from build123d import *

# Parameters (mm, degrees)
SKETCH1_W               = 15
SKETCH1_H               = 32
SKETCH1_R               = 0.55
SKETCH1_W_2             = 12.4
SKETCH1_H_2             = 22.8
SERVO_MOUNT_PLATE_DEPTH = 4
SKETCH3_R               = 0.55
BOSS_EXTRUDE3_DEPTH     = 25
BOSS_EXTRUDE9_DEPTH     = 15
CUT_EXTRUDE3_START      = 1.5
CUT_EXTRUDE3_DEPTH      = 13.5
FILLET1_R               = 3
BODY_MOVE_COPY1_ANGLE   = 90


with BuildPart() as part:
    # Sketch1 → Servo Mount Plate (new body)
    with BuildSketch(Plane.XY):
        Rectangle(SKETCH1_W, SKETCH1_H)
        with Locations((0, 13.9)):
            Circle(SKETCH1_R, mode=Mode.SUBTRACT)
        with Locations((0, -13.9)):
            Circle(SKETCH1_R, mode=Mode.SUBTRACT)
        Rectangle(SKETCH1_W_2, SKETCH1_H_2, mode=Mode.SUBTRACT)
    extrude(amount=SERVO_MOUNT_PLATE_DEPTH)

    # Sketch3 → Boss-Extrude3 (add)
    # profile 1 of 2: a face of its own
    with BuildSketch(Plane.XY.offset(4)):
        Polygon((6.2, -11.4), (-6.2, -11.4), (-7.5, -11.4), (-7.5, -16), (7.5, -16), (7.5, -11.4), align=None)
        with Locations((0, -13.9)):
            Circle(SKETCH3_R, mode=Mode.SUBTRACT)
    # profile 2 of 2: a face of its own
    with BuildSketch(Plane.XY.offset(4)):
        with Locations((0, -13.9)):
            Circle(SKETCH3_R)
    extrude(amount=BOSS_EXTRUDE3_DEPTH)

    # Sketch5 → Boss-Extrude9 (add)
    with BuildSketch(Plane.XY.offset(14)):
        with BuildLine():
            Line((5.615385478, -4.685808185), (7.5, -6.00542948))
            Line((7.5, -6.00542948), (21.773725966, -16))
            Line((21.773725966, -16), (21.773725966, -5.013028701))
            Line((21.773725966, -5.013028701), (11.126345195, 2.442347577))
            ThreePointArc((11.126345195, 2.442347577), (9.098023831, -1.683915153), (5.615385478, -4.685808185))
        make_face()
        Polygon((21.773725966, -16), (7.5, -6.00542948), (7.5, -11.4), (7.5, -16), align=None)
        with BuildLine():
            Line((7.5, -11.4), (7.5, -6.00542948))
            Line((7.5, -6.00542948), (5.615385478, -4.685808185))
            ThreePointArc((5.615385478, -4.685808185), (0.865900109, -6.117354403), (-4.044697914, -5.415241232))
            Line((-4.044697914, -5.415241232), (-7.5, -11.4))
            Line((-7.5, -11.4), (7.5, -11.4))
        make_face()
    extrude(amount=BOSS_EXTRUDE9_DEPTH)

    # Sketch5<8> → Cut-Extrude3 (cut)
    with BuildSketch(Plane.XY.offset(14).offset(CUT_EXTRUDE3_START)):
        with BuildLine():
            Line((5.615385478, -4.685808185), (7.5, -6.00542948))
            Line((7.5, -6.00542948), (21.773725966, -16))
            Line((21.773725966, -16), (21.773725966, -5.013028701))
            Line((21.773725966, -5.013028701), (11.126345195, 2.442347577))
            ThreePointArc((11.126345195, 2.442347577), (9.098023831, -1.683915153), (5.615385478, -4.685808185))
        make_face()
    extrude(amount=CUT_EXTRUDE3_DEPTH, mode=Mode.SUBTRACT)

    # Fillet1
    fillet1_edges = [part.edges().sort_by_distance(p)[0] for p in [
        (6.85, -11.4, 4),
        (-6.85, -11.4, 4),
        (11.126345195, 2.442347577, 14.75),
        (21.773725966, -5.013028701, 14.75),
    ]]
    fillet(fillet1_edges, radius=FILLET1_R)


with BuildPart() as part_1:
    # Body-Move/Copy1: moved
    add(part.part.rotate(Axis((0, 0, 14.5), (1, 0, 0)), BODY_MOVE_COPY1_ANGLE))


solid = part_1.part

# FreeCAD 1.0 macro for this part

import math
import FreeCAD as App
import Part
import Sketcher
from FreeCAD import Vector
Q = App.Units.Quantity


def edges_at(feature, points):
    """Names of the edges that pass closest to the given points."""
    edges = feature.Shape.Edges
    near = lambda p: min(range(len(edges)), key=lambda i: edges[i].distToShape(Part.Vertex(*p))[0])
    return sorted({f"Edge{near(p) + 1}" for p in points})


def add_polygon(sketch, points):
    """Adds a closed chain of lines whose ends are joined by coincident constraints."""
    first, n = sketch.GeometryCount, len(points)
    for a, b in zip(points, points[1:] + points[:1]):
        sketch.addGeometry(Part.LineSegment(App.Vector(*a, 0), App.Vector(*b, 0)), False)
    for i in range(n):
        sketch.addConstraint(Sketcher.Constraint("Coincident", first + i, 2, first + (i + 1) % n, 1))

doc = App.newDocument("Part")
body = doc.addObject("PartDesign::Body", "Body")

# Sketch on XY plane
sketch1 = body.newObject("Sketcher::SketchObject", "Sketch")
sketch1.AttachmentSupport = (doc.getObject("XY_Plane"), [""])
sketch1.MapMode = "FlatFace"
add_polygon(sketch1, [(-7.5, 16), (-7.5, -16), (7.5, -16), (7.5, 16)])  # lines 0-3
sketch1.addGeometry(Part.Circle(Vector(0, -13.9, 0), Vector(0, 0, 1), 0.55), False)  # 4
add_polygon(sketch1, [(6.2, -11.4), (-6.2, -11.4), (-6.2, 11.4), (6.2, 11.4)])  # lines 5-8
sketch1.addGeometry(Part.Circle(Vector(0, 13.9, 0), Vector(0, 0, 1), 0.55), False)  # 9
sketch1.addConstraint(Sketcher.Constraint("Vertical", 0))
sketch1.addConstraint(Sketcher.Constraint("Horizontal", 1))
sketch1.addConstraint(Sketcher.Constraint("Vertical", 2))
sketch1.addConstraint(Sketcher.Constraint("Horizontal", 3))
sketch1.addConstraint(Sketcher.Constraint("Horizontal", 5))
sketch1.addConstraint(Sketcher.Constraint("Vertical", 6))
sketch1.addConstraint(Sketcher.Constraint("Horizontal", 7))
sketch1.addConstraint(Sketcher.Constraint("Vertical", 8))
sketch1.addConstraint(Sketcher.Constraint("Equal", 4, 9))
sketch1.addConstraint(Sketcher.Constraint("Symmetric", 4, 3, 9, 3, -1, 1))
sketch1.addConstraint(Sketcher.Constraint("Symmetric", 0, 2, 2, 2, -1, 1))
sketch1.addConstraint(Sketcher.Constraint("Symmetric", 5, 2, 7, 2, -1, 1))
sketch1.addConstraint(Sketcher.Constraint("PointOnObject", 4, 3, -2))
sketch1.addConstraint(Sketcher.Constraint("Diameter", 4, 1.1))
sketch1.addConstraint(Sketcher.Constraint("DistanceX", 1, 1, 1, 2, 15.0))
sketch1.addConstraint(Sketcher.Constraint("DistanceY", 0, 2, 0, 1, 32.0))
sketch1.addConstraint(Sketcher.Constraint("DistanceX", 5, 2, 5, 1, 12.4))
sketch1.addConstraint(Sketcher.Constraint("DistanceY", 6, 1, 6, 2, 22.8))
sketch1.addConstraint(Sketcher.Constraint("DistanceY", 4, 3, -1, 1, 13.9))
pad1 = body.newObject("PartDesign::Pad", "Pad")
pad1.Profile = sketch1
pad1.Length = 4

# Sketch on XY plane
sketch2 = body.newObject("Sketcher::SketchObject", "Sketch001")
sketch2.AttachmentSupport = (doc.getObject("XY_Plane"), [""])
sketch2.MapMode = "FlatFace"
sketch2.AttachmentOffset = App.Placement(Vector(0, 0, 4), App.Rotation())
add_polygon(sketch2, [(-7.5, -11.4), (-7.5, -16), (7.5, -16), (7.5, -11.4)])  # lines 0-3
sketch2.addConstraint(Sketcher.Constraint("Vertical", 0))
sketch2.addConstraint(Sketcher.Constraint("Horizontal", 1))
sketch2.addConstraint(Sketcher.Constraint("Vertical", 2))
sketch2.addConstraint(Sketcher.Constraint("Horizontal", 3))
sketch2.addConstraint(Sketcher.Constraint("DistanceX", 1, 1, 1, 2, 15.0))
sketch2.addConstraint(Sketcher.Constraint("DistanceY", 0, 2, 0, 1, 4.6))
sketch2.addConstraint(Sketcher.Constraint("DistanceY", 0, 2, -1, 1, 16.0))
sketch2.addConstraint(Sketcher.Constraint("DistanceX", 0, 2, -1, 1, 7.5))
pad2 = body.newObject("PartDesign::Pad", "Pad001")
pad2.Profile = sketch2
pad2.Length = 25

# Sketch on XY plane
sketch3 = body.newObject("Sketcher::SketchObject", "Sketch002")
sketch3.AttachmentSupport = (doc.getObject("XY_Plane"), [""])
sketch3.MapMode = "FlatFace"
sketch3.AttachmentOffset = App.Placement(Vector(0, 0, 14), App.Rotation())
sketch3.addGeometry(Part.LineSegment(Vector(7.5, -11.4, 0), Vector(7.5, -16, 0)), False)
sketch3.addGeometry(Part.LineSegment(Vector(7.5, -16, 0), Vector(21.773726, -16, 0)), False)
sketch3.addGeometry(Part.LineSegment(Vector(21.773726, -16, 0), Vector(21.773726, -5.013029, 0)), False)
sketch3.addGeometry(Part.LineSegment(Vector(21.773726, -5.013029, 0), Vector(11.126345, 2.442348, 0)), False)
sketch3.addGeometry(Part.ArcOfCircle(Part.Circle(Vector(0, 5.35, 0), Vector(0, 0, 1), 11.5), math.radians(-60.771462), math.radians(-14.645594)), False)
sketch3.addGeometry(Part.ArcOfCircle(Part.Circle(Vector(0, 5.35, 0), Vector(0, 0, 1), 11.5), math.radians(-110.592117), math.radians(-60.771462)), False)
sketch3.addGeometry(Part.LineSegment(Vector(-4.044698, -5.415241, 0), Vector(-7.5, -11.4, 0)), False)
sketch3.addGeometry(Part.LineSegment(Vector(-7.5, -11.4, 0), Vector(7.5, -11.4, 0)), False)
sketch3.addConstraint(Sketcher.Constraint("Coincident", 0, 2, 1, 1))
sketch3.addConstraint(Sketcher.Constraint("Coincident", 1, 2, 2, 1))
sketch3.addConstraint(Sketcher.Constraint("Coincident", 2, 2, 3, 1))
sketch3.addConstraint(Sketcher.Constraint("Coincident", 3, 2, 4, 2))
sketch3.addConstraint(Sketcher.Constraint("Tangent", 4, 1, 5, 2))
sketch3.addConstraint(Sketcher.Constraint("Coincident", 5, 1, 6, 1))
sketch3.addConstraint(Sketcher.Constraint("Coincident", 6, 2, 7, 1))
sketch3.addConstraint(Sketcher.Constraint("Coincident", 7, 2, 0, 1))
sketch3.addConstraint(Sketcher.Constraint("Vertical", 0))
sketch3.addConstraint(Sketcher.Constraint("Horizontal", 1))
sketch3.addConstraint(Sketcher.Constraint("Vertical", 2))
sketch3.addConstraint(Sketcher.Constraint("Horizontal", 7))
sketch3.addConstraint(Sketcher.Constraint("Equal", 4, 5))
sketch3.addConstraint(Sketcher.Constraint("PointOnObject", 4, 3, -2))
sketch3.addConstraint(Sketcher.Constraint("Radius", 4, 11.5))
sketch3.addConstraint(Sketcher.Constraint("DistanceX", 7, 1, 7, 2, 15.0))
sketch3.addConstraint(Sketcher.Constraint("Angle", 3, Q("145 deg")))
sketch3.addConstraint(Sketcher.Constraint("Angle", 6, Q("-120 deg")))
sketch3.addConstraint(Sketcher.Constraint("DistanceY", 0, 2, 0, 1, 4.6))
sketch3.addConstraint(Sketcher.Constraint("DistanceY", 0, 2, -1, 1, 16.0))
sketch3.addConstraint(Sketcher.Constraint("DistanceX", -1, 1, 0, 2, 7.5))
sketch3.addConstraint(Sketcher.Constraint("DistanceY", -1, 1, 4, 3, 5.35))
sketch3.addConstraint(Sketcher.Constraint("DistanceY", 2, 1, 2, 2, 10.986971))
sketch3.addConstraint(Sketcher.Constraint("Distance", 3, 12.998052))
sketch3.addConstraint(Sketcher.Constraint("DistanceY", 4, 1, -1, 1, 4.685808))
pad3 = body.newObject("PartDesign::Pad", "Pad002")
pad3.Profile = sketch3
pad3.Length = 15

# Sketch on XY plane
sketch4 = body.newObject("Sketcher::SketchObject", "Sketch003")
sketch4.AttachmentSupport = (doc.getObject("XY_Plane"), [""])
sketch4.MapMode = "FlatFace"
sketch4.AttachmentOffset = App.Placement(Vector(0, 0, 15.5), App.Rotation())
sketch4.addGeometry(Part.LineSegment(Vector(5.615385, -4.685808, 0), Vector(7.5, -6.005429, 0)), False)
sketch4.addGeometry(Part.LineSegment(Vector(7.5, -6.005429, 0), Vector(21.773726, -16, 0)), False)
sketch4.addGeometry(Part.LineSegment(Vector(21.773726, -16, 0), Vector(21.773726, -5.013029, 0)), False)
sketch4.addGeometry(Part.LineSegment(Vector(21.773726, -5.013029, 0), Vector(11.126345, 2.442348, 0)), False)
sketch4.addGeometry(Part.ArcOfCircle(Part.Circle(Vector(0, 5.35, 0), Vector(0, 0, 1), 11.5), math.radians(-60.771462), math.radians(-14.645594)), False)
sketch4.addConstraint(Sketcher.Constraint("Coincident", 0, 2, 1, 1))
sketch4.addConstraint(Sketcher.Constraint("Coincident", 1, 2, 2, 1))
sketch4.addConstraint(Sketcher.Constraint("Coincident", 2, 2, 3, 1))
sketch4.addConstraint(Sketcher.Constraint("Coincident", 3, 2, 4, 2))
sketch4.addConstraint(Sketcher.Constraint("Coincident", 4, 1, 0, 1))
sketch4.addConstraint(Sketcher.Constraint("Vertical", 2))
sketch4.addConstraint(Sketcher.Constraint("PointOnObject", 4, 3, -2))
sketch4.addConstraint(Sketcher.Constraint("Parallel", 0, 1))
sketch4.addConstraint(Sketcher.Constraint("Parallel", 1, 3))
sketch4.addConstraint(Sketcher.Constraint("Radius", 4, 11.5))
sketch4.addConstraint(Sketcher.Constraint("Angle", 0, Q("-35 deg")))
sketch4.addConstraint(Sketcher.Constraint("DistanceY", 1, 2, -1, 1, 16.0))
sketch4.addConstraint(Sketcher.Constraint("DistanceX", -1, 1, 0, 2, 7.5))
sketch4.addConstraint(Sketcher.Constraint("DistanceY", -1, 1, 4, 3, 5.35))
sketch4.addConstraint(Sketcher.Constraint("Distance", 1, 17.425002))
sketch4.addConstraint(Sketcher.Constraint("DistanceY", 2, 1, 2, 2, 10.986971))
pocket1 = body.newObject("PartDesign::Pocket", "Pocket")
pocket1.Profile = sketch4
pocket1.Length = 13.5
pocket1.Reversed = True
doc.recompute()

fillet = body.newObject("PartDesign::Fillet", "Fillet")
fillet.Base = (pocket1, edges_at(pocket1, [
    (6.85, -11.4, 4),
    (-6.85, -11.4, 4),
    (11.126, 2.442, 14.75),
    (21.774, -5.013, 14.75),
]))
fillet.Radius = 3
body2 = doc.addObject("PartDesign::Body", "Body001")
doc.recompute()

body.Placement = App.Placement(Vector(0, 14.5, 14.5), App.Rotation(Vector(1, 0, 0), 90))
boolean = body2.newObject("PartDesign::Boolean", "Boolean")
boolean.Type = "Fuse"
boolean.addObjects([body])

doc.recompute()
